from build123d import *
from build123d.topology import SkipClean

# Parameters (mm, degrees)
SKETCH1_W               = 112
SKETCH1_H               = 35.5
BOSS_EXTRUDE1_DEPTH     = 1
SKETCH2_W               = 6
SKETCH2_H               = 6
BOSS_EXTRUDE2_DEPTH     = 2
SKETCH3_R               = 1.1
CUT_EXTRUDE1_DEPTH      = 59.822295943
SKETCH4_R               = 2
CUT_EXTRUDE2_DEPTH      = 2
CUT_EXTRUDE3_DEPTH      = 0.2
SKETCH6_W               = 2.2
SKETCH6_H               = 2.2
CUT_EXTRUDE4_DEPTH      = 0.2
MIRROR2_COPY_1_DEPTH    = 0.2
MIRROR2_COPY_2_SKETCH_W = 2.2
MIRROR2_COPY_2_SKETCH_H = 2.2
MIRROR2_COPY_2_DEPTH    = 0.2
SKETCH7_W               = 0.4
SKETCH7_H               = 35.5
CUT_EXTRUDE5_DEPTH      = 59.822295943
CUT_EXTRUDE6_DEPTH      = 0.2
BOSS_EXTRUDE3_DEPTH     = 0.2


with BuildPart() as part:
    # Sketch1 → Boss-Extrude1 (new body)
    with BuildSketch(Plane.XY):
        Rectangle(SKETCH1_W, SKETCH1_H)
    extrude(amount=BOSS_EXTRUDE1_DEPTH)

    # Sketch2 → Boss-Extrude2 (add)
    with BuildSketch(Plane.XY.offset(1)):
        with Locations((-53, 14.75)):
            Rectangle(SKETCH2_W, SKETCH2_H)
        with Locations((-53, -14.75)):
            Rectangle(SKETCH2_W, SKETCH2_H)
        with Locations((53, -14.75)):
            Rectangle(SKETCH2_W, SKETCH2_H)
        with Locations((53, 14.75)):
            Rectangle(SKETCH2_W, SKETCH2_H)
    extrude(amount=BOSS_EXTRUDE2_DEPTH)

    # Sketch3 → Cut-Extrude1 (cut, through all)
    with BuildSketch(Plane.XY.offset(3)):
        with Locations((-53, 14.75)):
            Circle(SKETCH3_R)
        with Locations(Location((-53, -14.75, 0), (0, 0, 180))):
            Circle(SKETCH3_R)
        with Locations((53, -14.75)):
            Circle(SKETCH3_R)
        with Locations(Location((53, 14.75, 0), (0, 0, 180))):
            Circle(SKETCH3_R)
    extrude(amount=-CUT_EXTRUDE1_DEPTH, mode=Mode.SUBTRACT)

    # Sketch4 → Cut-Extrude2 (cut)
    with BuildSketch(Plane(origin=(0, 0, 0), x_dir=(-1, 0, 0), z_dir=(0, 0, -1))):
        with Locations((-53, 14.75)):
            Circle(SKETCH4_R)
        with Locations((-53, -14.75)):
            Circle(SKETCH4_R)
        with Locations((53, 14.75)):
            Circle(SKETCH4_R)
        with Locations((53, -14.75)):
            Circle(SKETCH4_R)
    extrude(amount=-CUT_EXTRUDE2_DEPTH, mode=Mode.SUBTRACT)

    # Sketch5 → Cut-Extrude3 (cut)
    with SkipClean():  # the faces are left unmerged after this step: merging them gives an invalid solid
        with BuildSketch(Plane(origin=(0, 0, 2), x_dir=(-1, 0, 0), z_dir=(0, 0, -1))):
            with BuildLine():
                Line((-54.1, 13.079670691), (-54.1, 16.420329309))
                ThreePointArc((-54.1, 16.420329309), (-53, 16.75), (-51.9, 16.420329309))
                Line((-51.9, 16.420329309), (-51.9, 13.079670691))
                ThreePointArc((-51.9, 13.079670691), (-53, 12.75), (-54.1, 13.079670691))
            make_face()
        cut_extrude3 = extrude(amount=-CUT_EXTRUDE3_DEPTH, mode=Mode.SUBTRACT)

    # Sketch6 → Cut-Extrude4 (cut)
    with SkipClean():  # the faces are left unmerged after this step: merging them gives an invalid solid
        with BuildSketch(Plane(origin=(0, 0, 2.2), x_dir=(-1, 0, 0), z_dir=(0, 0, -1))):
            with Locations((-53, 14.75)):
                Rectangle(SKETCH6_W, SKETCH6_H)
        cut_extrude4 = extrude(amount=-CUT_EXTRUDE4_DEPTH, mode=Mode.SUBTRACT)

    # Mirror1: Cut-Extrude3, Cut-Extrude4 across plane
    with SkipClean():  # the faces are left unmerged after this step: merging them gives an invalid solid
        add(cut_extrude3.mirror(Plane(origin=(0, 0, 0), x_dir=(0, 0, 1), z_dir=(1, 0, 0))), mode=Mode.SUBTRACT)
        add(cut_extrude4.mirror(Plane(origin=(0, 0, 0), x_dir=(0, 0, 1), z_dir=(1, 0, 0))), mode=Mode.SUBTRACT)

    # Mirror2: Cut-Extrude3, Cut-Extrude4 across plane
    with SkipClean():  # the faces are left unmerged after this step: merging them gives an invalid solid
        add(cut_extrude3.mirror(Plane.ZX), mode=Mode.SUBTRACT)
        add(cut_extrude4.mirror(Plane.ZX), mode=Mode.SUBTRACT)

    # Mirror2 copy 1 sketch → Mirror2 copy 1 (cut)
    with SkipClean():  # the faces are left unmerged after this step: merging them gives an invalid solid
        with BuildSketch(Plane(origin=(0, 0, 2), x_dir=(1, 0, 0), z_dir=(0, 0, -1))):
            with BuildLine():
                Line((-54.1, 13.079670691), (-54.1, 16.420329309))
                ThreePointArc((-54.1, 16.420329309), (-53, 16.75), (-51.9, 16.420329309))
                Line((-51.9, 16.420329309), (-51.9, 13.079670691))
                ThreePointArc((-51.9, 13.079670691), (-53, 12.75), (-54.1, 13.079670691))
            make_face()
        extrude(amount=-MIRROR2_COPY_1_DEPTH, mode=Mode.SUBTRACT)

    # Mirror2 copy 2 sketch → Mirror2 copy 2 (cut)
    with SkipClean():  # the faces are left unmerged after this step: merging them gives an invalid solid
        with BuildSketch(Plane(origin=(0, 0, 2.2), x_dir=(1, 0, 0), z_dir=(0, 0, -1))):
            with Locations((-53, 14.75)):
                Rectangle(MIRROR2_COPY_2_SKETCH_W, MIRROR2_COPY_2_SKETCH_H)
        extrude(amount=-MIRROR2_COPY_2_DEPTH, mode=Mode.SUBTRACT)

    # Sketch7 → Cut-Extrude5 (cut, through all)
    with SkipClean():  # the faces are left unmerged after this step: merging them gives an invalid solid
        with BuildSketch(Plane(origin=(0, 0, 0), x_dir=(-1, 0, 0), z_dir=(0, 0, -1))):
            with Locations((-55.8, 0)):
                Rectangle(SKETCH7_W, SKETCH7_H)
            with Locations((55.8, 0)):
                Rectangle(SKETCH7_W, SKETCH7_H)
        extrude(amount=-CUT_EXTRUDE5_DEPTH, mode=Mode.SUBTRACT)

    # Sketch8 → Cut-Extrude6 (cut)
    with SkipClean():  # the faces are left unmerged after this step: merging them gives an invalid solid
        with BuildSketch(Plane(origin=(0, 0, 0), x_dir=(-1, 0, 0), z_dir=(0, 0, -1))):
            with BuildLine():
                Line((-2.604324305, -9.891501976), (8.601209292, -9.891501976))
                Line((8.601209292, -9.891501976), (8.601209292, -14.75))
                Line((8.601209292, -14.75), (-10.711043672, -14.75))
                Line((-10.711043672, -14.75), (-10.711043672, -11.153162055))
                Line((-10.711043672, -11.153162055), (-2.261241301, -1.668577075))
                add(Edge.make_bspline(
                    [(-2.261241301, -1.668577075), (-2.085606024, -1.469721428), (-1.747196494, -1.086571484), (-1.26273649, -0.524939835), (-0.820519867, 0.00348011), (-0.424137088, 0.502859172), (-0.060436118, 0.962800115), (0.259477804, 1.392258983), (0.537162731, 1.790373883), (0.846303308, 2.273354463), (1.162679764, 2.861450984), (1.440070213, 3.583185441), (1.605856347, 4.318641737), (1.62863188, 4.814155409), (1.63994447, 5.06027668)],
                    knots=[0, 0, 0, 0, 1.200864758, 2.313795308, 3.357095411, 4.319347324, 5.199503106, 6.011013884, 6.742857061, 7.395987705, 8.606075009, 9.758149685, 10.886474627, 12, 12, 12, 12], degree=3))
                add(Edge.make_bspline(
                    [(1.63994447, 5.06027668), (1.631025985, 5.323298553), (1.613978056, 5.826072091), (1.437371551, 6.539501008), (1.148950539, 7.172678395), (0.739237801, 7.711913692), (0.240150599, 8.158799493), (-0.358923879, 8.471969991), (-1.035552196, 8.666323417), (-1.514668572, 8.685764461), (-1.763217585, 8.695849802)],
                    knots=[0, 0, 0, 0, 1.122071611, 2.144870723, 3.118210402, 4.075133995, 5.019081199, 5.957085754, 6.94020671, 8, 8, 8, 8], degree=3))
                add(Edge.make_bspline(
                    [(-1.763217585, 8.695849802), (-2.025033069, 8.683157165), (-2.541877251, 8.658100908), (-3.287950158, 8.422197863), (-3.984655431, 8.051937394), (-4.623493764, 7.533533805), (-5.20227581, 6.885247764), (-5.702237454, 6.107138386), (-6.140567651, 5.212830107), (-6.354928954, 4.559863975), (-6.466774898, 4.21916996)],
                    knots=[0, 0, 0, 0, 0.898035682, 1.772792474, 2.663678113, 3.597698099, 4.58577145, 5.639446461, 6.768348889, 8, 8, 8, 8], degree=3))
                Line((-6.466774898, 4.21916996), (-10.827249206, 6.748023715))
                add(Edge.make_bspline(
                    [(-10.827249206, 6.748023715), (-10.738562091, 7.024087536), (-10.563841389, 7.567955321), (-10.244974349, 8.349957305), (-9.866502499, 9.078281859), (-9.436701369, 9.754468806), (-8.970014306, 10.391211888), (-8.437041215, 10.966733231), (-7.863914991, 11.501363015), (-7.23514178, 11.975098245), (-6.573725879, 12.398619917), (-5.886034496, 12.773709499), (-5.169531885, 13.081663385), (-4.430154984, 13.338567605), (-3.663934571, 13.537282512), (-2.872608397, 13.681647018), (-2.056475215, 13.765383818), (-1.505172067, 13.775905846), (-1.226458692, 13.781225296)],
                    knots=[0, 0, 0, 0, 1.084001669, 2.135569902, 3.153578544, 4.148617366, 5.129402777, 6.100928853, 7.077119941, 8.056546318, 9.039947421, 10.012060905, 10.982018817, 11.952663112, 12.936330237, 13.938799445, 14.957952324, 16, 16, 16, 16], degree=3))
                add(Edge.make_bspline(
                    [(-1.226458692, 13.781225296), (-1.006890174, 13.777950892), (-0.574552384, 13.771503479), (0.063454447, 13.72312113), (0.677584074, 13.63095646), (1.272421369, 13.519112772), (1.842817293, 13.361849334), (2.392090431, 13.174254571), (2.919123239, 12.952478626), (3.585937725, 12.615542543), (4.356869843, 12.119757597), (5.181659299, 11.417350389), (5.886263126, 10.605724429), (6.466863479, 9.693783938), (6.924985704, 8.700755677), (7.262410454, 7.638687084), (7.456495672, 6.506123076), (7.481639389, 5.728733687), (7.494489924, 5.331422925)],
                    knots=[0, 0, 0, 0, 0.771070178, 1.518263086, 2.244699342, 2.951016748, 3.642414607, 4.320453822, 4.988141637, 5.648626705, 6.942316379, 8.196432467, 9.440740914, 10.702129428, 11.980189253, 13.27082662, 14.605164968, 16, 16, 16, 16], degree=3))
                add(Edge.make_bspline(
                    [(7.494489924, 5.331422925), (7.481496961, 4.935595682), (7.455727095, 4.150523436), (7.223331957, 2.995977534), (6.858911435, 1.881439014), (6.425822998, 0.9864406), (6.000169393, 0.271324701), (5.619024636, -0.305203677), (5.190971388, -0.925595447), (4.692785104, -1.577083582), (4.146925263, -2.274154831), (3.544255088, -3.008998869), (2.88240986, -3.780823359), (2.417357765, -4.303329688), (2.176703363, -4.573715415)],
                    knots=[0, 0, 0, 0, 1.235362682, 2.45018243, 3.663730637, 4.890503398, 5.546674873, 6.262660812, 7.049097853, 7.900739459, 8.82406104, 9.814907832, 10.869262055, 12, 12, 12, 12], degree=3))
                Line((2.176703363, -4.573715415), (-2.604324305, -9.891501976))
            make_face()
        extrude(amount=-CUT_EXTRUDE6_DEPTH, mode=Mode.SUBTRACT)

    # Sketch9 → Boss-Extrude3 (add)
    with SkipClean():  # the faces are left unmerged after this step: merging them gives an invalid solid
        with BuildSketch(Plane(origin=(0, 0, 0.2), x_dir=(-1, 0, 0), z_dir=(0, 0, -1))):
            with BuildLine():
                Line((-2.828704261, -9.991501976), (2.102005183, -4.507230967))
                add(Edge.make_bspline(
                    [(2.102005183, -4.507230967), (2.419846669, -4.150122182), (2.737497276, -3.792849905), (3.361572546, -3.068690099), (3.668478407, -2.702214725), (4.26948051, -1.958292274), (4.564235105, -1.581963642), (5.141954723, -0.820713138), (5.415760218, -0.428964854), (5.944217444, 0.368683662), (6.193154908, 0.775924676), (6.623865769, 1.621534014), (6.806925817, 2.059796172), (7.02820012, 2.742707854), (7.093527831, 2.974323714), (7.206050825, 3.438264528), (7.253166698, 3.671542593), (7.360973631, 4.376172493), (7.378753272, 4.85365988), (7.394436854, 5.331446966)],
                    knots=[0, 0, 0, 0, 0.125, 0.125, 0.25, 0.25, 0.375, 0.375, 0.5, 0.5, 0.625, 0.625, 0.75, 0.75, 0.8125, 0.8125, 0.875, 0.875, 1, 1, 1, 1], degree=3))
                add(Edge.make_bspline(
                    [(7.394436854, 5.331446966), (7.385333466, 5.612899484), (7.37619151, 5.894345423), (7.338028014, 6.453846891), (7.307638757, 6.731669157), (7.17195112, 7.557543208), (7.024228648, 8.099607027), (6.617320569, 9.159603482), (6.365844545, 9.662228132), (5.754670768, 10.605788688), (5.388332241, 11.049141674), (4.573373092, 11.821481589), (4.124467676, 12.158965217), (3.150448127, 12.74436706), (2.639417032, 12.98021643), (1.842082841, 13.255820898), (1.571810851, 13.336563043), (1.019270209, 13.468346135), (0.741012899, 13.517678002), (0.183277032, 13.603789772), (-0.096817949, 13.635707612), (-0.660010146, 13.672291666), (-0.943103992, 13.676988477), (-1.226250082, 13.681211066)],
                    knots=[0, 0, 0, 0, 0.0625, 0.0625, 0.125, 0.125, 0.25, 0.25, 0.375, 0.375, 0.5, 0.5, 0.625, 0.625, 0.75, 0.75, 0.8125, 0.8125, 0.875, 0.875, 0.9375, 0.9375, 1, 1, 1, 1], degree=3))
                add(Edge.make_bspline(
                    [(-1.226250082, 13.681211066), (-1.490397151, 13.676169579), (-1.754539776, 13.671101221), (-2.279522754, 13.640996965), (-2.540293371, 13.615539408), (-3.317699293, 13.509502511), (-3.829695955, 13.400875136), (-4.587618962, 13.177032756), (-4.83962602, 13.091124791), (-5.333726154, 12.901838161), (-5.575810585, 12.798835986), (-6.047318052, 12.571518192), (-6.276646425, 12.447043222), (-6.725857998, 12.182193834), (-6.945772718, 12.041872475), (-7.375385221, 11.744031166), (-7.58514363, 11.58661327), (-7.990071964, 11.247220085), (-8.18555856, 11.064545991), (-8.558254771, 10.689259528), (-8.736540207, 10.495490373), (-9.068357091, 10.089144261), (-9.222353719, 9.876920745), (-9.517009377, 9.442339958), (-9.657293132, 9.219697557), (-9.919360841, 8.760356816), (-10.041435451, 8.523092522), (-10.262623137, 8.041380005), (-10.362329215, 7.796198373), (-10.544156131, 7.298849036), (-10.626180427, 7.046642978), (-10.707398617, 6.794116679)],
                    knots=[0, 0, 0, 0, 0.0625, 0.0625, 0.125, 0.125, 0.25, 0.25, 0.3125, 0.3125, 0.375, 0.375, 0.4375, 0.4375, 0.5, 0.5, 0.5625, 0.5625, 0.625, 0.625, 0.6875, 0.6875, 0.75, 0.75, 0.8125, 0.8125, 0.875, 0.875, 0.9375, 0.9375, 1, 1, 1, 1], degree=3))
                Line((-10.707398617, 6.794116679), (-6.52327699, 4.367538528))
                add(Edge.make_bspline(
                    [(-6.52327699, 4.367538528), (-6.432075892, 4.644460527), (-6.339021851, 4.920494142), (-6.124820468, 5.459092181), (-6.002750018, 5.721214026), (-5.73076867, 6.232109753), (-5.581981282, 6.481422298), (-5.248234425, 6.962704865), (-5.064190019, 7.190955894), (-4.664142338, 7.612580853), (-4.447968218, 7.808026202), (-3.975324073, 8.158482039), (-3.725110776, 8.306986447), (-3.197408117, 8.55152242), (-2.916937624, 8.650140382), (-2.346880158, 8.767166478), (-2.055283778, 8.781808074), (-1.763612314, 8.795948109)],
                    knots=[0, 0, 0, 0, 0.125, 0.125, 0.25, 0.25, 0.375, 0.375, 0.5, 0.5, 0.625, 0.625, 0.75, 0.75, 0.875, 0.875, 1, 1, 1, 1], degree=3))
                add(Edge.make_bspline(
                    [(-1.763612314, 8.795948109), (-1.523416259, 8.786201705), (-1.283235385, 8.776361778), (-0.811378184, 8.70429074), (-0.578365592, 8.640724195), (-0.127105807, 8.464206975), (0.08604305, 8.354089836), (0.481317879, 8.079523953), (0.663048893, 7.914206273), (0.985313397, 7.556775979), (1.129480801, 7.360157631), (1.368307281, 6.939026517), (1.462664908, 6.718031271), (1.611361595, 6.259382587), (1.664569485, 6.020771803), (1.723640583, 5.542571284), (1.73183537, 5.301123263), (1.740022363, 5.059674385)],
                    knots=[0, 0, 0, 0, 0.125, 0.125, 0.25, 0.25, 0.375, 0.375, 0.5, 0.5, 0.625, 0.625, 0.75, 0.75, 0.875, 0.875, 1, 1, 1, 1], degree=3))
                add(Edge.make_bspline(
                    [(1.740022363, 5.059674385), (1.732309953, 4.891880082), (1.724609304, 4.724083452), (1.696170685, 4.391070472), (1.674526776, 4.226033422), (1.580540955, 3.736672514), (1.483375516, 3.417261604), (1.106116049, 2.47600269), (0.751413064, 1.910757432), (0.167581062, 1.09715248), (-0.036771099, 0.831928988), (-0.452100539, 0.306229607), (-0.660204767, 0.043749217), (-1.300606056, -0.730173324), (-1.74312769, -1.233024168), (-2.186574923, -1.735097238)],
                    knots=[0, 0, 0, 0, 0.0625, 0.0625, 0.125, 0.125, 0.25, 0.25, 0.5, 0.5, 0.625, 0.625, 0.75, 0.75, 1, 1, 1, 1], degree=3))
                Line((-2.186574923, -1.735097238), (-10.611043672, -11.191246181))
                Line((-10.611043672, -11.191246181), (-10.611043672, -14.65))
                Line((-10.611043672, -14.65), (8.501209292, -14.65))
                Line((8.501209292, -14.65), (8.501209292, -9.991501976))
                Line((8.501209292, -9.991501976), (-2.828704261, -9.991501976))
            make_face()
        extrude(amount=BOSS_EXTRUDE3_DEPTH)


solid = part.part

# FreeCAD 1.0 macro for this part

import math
import FreeCAD as App
import Part
import Sketcher

V = App.Vector
Q = App.Units.Quantity


def add_polygon(sketch, points):
    """Adds a closed chain of lines whose ends are joined by coincident constraints."""
    first, n = sketch.GeometryCount, len(points)
    for a, b in zip(points, points[1:] + points[:1]):
        sketch.addGeometry(Part.LineSegment(App.Vector(*a, 0), App.Vector(*b, 0)), False)
    for i in range(n):
        sketch.addConstraint(Sketcher.Constraint("Coincident", first + i, 2, first + (i + 1) % n, 1))

doc = App.newDocument("Part")
body = doc.addObject("PartDesign::Body", "Body")

# Sketch on XY plane
sketch1 = body.newObject("Sketcher::SketchObject", "Sketch")
sketch1.AttachmentSupport = (doc.getObject("XY_Plane"), [""])
sketch1.MapMode = "FlatFace"
add_polygon(sketch1, [(-56, 18), (-56, -18), (56, -18), (56, 18)])  # lines 0-3
sketch1.addConstraint([
    Sketcher.Constraint("Vertical", 0),
    Sketcher.Constraint("Horizontal", 1),
    Sketcher.Constraint("Vertical", 2),
    Sketcher.Constraint("Horizontal", 3),
    Sketcher.Constraint("Symmetric", 0, 2, 2, 2, -1, 1),
    Sketcher.Constraint("DistanceX", 1, 1, 1, 2, Q("112 mm")),
    Sketcher.Constraint("DistanceY", 0, 2, 0, 1, Q("35.5 mm")),
])
pad1 = body.newObject("PartDesign::Pad", "Pad")
pad1.Profile = sketch1
pad1.Length = 1

# Sketch on XY plane
sketch2 = body.newObject("Sketcher::SketchObject", "Sketch001")
sketch2.AttachmentSupport = (doc.getObject("XY_Plane"), [""])
sketch2.MapMode = "FlatFace"
sketch2.AttachmentOffset = App.Placement(V(0, 0, 1), App.Rotation())
add_polygon(sketch2, [(-56, 18), (-56, 12), (-50, 12), (-50, 18)])  # lines 0-3
add_polygon(sketch2, [(-56, -12), (-56, -18), (-50, -18), (-50, -12)])  # lines 4-7
add_polygon(sketch2, [(50, -12), (50, -18), (56, -18), (56, -12)])  # lines 8-11
add_polygon(sketch2, [(50, 18), (50, 12), (56, 12), (56, 18)])  # lines 12-15
sketch2.addConstraint([
    Sketcher.Constraint("Vertical", 0),
    Sketcher.Constraint("Horizontal", 1),
    Sketcher.Constraint("Vertical", 2),
    Sketcher.Constraint("Horizontal", 3),
    Sketcher.Constraint("Vertical", 4),
    Sketcher.Constraint("Horizontal", 5),
    Sketcher.Constraint("Vertical", 6),
    Sketcher.Constraint("Horizontal", 7),
    Sketcher.Constraint("Vertical", 8),
    Sketcher.Constraint("Horizontal", 9),
    Sketcher.Constraint("Vertical", 10),
    Sketcher.Constraint("Horizontal", 11),
    Sketcher.Constraint("Vertical", 12),
    Sketcher.Constraint("Horizontal", 13),
    Sketcher.Constraint("Vertical", 14),
    Sketcher.Constraint("Horizontal", 15),
    Sketcher.Constraint("Symmetric", 2, 2, 8, 2, -1, 1),
    Sketcher.Constraint("Symmetric", 0, 2, 10, 2, -1, 1),
    Sketcher.Constraint("Symmetric", 6, 2, 12, 2, -1, 1),
    Sketcher.Constraint("Symmetric", 4, 2, 14, 2, -1, 1),
    Sketcher.Constraint("Symmetric", 5, 2, 8, 2, -2),
    Sketcher.Constraint("Symmetric", 7, 2, 10, 2, -2),
    Sketcher.Constraint("Equal", 15, 0),
    Sketcher.Constraint("DistanceX", 1, 1, 1, 2, Q("6 mm")),
    Sketcher.Constraint("DistanceX", 0, 2, -1, 1, Q("56 mm")),
    Sketcher.Constraint("DistanceY", 4, 2, 0, 2, Q("29.5 mm")),
])
pad2 = body.newObject("PartDesign::Pad", "Pad001")
pad2.Profile = sketch2
pad2.Length = 2

# Sketch on XY plane
sketch3 = body.newObject("Sketcher::SketchObject", "Sketch002")
sketch3.AttachmentSupport = (doc.getObject("XY_Plane"), [""])
sketch3.MapMode = "FlatFace"
sketch3.AttachmentOffset = App.Placement(V(0, 0, 3), App.Rotation())
sketch3.addGeometry([
    Part.Circle(V(-53, 14.8, 0), V(0, 0, 1), 1.1),
    Part.Circle(V(-53, -14.8, 0), V(0, 0, 1), 1.1),
    Part.Circle(V(53, -14.8, 0), V(0, 0, 1), 1.1),
    Part.Circle(V(53, 14.8, 0), V(0, 0, 1), 1.1),
], False)
sketch3.addConstraint([
    Sketcher.Constraint("Equal", 0, 1),
    Sketcher.Constraint("Equal", 1, 2),
    Sketcher.Constraint("Equal", 2, 3),
    Sketcher.Constraint("Symmetric", 0, 3, 2, 3, -1, 1),
    Sketcher.Constraint("Symmetric", 1, 3, 3, 3, -1, 1),
    Sketcher.Constraint("Symmetric", 1, 3, 2, 3, -2),
    Sketcher.Constraint("Diameter", 0, Q("2.2 mm")),
    Sketcher.Constraint("DistanceX", 0, 3, -1, 1, Q("53 mm")),
    Sketcher.Constraint("DistanceY", 1, 3, 0, 3, Q("29.5 mm")),
])
pocket1 = body.newObject("PartDesign::Pocket", "Pocket")
pocket1.Profile = sketch3
pocket1.Type = "ThroughAll"

# Sketch on XY plane
sketch4 = body.newObject("Sketcher::SketchObject", "Sketch003")
sketch4.AttachmentSupport = (doc.getObject("XY_Plane"), [""])
sketch4.MapMode = "FlatFace"
sketch4.addGeometry([
    Part.Circle(V(53, 14.8, 0), V(0, 0, 1), 2),
    Part.Circle(V(53, -14.8, 0), V(0, 0, 1), 2),
    Part.Circle(V(-53, 14.8, 0), V(0, 0, 1), 2),
    Part.Circle(V(-53, -14.8, 0), V(0, 0, 1), 2),
], False)
sketch4.addConstraint([
    Sketcher.Constraint("Equal", 0, 1),
    Sketcher.Constraint("Equal", 1, 2),
    Sketcher.Constraint("Equal", 2, 3),
    Sketcher.Constraint("Symmetric", 1, 3, 2, 3, -1, 1),
    Sketcher.Constraint("Symmetric", 0, 3, 3, 3, -1, 1),
    Sketcher.Constraint("Symmetric", 0, 3, 2, 3, -2),
    Sketcher.Constraint("Diameter", 0, Q("4 mm")),
    Sketcher.Constraint("DistanceX", -1, 1, 0, 3, Q("53 mm")),
    Sketcher.Constraint("DistanceY", 1, 3, 0, 3, Q("29.5 mm")),
])
pocket2 = body.newObject("PartDesign::Pocket", "Pocket001")
pocket2.Profile = sketch4
pocket2.Length = 2
pocket2.Reversed = True

# Sketch on XY plane
sketch5 = body.newObject("Sketcher::SketchObject", "Sketch004")
sketch5.AttachmentSupport = (doc.getObject("XY_Plane"), [""])
sketch5.MapMode = "FlatFace"
sketch5.AttachmentOffset = App.Placement(V(0, 0, 2), App.Rotation())
sketch5.addGeometry([
    Part.LineSegment(V(54.1, 16.4, 0), V(54.1, 13.1, 0)),
    Part.ArcOfCircle(Part.Circle(V(53, 14.8, 0), V(0, 0, 1), 2), math.radians(-123), math.radians(-57)),
    Part.LineSegment(V(51.9, 13.1, 0), V(51.9, 16.4, 0)),
    Part.ArcOfCircle(Part.Circle(V(53, 14.7, 0), V(0, 0, 1), 2), math.radians(57), math.radians(123)),
], False)
sketch5.addConstraint([
    Sketcher.Constraint("Coincident", 0, 2, 1, 2),
    Sketcher.Constraint("Coincident", 1, 1, 2, 1),
    Sketcher.Constraint("Coincident", 2, 2, 3, 2),
    Sketcher.Constraint("Coincident", 3, 1, 0, 1),
    Sketcher.Constraint("Vertical", 0),
    Sketcher.Constraint("Vertical", 2),
    Sketcher.Constraint("Coincident", 3, 3, 1, 3),
    Sketcher.Constraint("Equal", 1, 3),
    Sketcher.Constraint("Horizontal", 0, 2, 1, 1),
    Sketcher.Constraint("Radius", 1, Q("2 mm")),
    Sketcher.Constraint("DistanceX", -1, 1, 1, 3, Q("53 mm")),
    Sketcher.Constraint("DistanceX", -1, 1, 0, 2, Q("54.1 mm")),
    Sketcher.Constraint("DistanceY", -1, 1, 1, 3, Q("14.75 mm")),
])
pocket3 = body.newObject("PartDesign::Pocket", "Pocket002")
pocket3.Profile = sketch5
pocket3.Length = 0.2
pocket3.Reversed = True

# Sketch on XY plane
sketch6 = body.newObject("Sketcher::SketchObject", "Sketch005")
sketch6.AttachmentSupport = (doc.getObject("XY_Plane"), [""])
sketch6.MapMode = "FlatFace"
sketch6.AttachmentOffset = App.Placement(V(0, 0, 2.2), App.Rotation())
add_polygon(sketch6, [(54.1, 15.8), (54.1, 13.7), (51.9, 13.7), (51.9, 15.8)])  # lines 0-3
sketch6.addConstraint([
    Sketcher.Constraint("Vertical", 0),
    Sketcher.Constraint("Horizontal", 1),
    Sketcher.Constraint("Vertical", 2),
    Sketcher.Constraint("Horizontal", 3),
    Sketcher.Constraint("Equal", 3, 0),
    Sketcher.Constraint("DistanceX", 1, 2, 1, 1, Q("2.2 mm")),
    Sketcher.Constraint("DistanceX", -1, 1, 0, 2, Q("54.1 mm")),
    Sketcher.Constraint("DistanceY", -1, 1, 0, 2, Q("13.65 mm")),
])
pocket4 = body.newObject("PartDesign::Pocket", "Pocket003")
pocket4.Profile = sketch6
pocket4.Length = 0.2
pocket4.Reversed = True
doc.recompute()

mirrored = body.newObject("PartDesign::Mirrored", "Mirrored")
mirrored.Originals = [pocket3, pocket4]
mirrored.MirrorPlane = (doc.getObject("YZ_Plane"), [""])
body.Tip = mirrored
doc.recompute()

mirrored2 = body.newObject("PartDesign::Mirrored", "Mirrored001")
mirrored2.Originals = [pocket3, pocket4]
mirrored2.MirrorPlane = (doc.getObject("XZ_Plane"), [""])
body.Tip = mirrored2

# Sketch on XY plane
sketch7 = body.newObject("Sketcher::SketchObject", "Sketch006")
sketch7.AttachmentSupport = (doc.getObject("XY_Plane"), [""])
sketch7.MapMode = "FlatFace"
sketch7.AttachmentOffset = App.Placement(V(0, 0, 2), App.Rotation())
sketch7.addGeometry([
    Part.LineSegment(V(-54.1, -16.4, 0), V(-54.1, -13.1, 0)),
    Part.ArcOfCircle(Part.Circle(V(-53, -14.8, 0), V(0, 0, 1), 2), math.radians(57), math.radians(123)),
    Part.LineSegment(V(-51.9, -13.1, 0), V(-51.9, -16.4, 0)),
    Part.ArcOfCircle(Part.Circle(V(-53, -14.7, 0), V(0, 0, 1), 2), math.radians(-123), math.radians(-57)),
], False)
sketch7.addConstraint([
    Sketcher.Constraint("Coincident", 0, 2, 1, 2),
    Sketcher.Constraint("Coincident", 1, 1, 2, 1),
    Sketcher.Constraint("Coincident", 2, 2, 3, 2),
    Sketcher.Constraint("Coincident", 3, 1, 0, 1),
    Sketcher.Constraint("Vertical", 0),
    Sketcher.Constraint("Vertical", 2),
    Sketcher.Constraint("Coincident", 3, 3, 1, 3),
    Sketcher.Constraint("Equal", 1, 3),
    Sketcher.Constraint("Horizontal", 0, 2, 1, 1),
    Sketcher.Constraint("Radius", 1, Q("2 mm")),
    Sketcher.Constraint("DistanceX", 1, 3, -1, 1, Q("53 mm")),
    Sketcher.Constraint("DistanceX", 0, 2, -1, 1, Q("54.1 mm")),
    Sketcher.Constraint("DistanceY", 1, 3, -1, 1, Q("14.75 mm")),
])
pocket5 = body.newObject("PartDesign::Pocket", "Pocket004")
pocket5.Profile = sketch7
pocket5.Length = 0.2
pocket5.Reversed = True

# Sketch on XY plane
sketch8 = body.newObject("Sketcher::SketchObject", "Sketch007")
sketch8.AttachmentSupport = (doc.getObject("XY_Plane"), [""])
sketch8.MapMode = "FlatFace"
sketch8.AttachmentOffset = App.Placement(V(0, 0, 2.2), App.Rotation())
add_polygon(sketch8, [(-54.1, -15.8), (-54.1, -13.7), (-51.9, -13.7), (-51.9, -15.8)])  # lines 0-3
sketch8.addConstraint([
    Sketcher.Constraint("Vertical", 0),
    Sketcher.Constraint("Horizontal", 1),
    Sketcher.Constraint("Vertical", 2),
    Sketcher.Constraint("Horizontal", 3),
    Sketcher.Constraint("Equal", 3, 0),
    Sketcher.Constraint("DistanceX", 1, 1, 1, 2, Q("2.2 mm")),
    Sketcher.Constraint("DistanceX", 0, 2, -1, 1, Q("54.1 mm")),
    Sketcher.Constraint("DistanceY", 0, 2, -1, 1, Q("13.65 mm")),
])
pocket6 = body.newObject("PartDesign::Pocket", "Pocket005")
pocket6.Profile = sketch8
pocket6.Length = 0.2
pocket6.Reversed = True

# Sketch on XY plane
sketch9 = body.newObject("Sketcher::SketchObject", "Sketch008")
sketch9.AttachmentSupport = (doc.getObject("XY_Plane"), [""])
sketch9.MapMode = "FlatFace"
add_polygon(sketch9, [(56, 17.75), (56, -17.75), (55.6, -17.75), (55.6, 17.75)])  # lines 0-3
add_polygon(sketch9, [(-55.6, 17.75), (-55.6, -17.75), (-56, -17.75), (-56, 17.75)])  # lines 4-7
sketch9.addConstraint([
    Sketcher.Constraint("Vertical", 0),
    Sketcher.Constraint("Horizontal", 1),
    Sketcher.Constraint("Vertical", 2),
    Sketcher.Constraint("Horizontal", 3),
    Sketcher.Constraint("Vertical", 4),
    Sketcher.Constraint("Horizontal", 5),
    Sketcher.Constraint("Vertical", 6),
    Sketcher.Constraint("Horizontal", 7),
    Sketcher.Constraint("Symmetric", 2, 2, 4, 2, -1, 1),
    Sketcher.Constraint("Symmetric", 0, 2, 6, 2, -1, 1),
    Sketcher.Constraint("Horizontal", 1, 2, 4, 2),
    Sketcher.Constraint("DistanceX", 1, 2, 1, 1, Q("0.4 mm")),
    Sketcher.Constraint("DistanceY", 0, 2, 0, 1, Q("35.5 mm")),
    Sketcher.Constraint("DistanceX", -1, 1, 0, 2, Q("56 mm")),
])
pocket7 = body.newObject("PartDesign::Pocket", "Pocket006")
pocket7.Profile = sketch9
pocket7.Type = "ThroughAll"
pocket7.Reversed = True

# Sketch on XY plane
sketch10 = body.newObject("Sketcher::SketchObject", "Sketch009")
sketch10.AttachmentSupport = (doc.getObject("XY_Plane"), [""])
sketch10.MapMode = "FlatFace"
sketch10.addGeometry([
    Part.LineSegment(V(-8.601209, -9.891502, 0), V(2.604324, -9.891502, 0)),  # 0
    Part.LineSegment(V(2.604324, -9.891502, 0), V(-2.176703, -4.573715, 0)),  # 1
    Part.BSplineCurve([V(-7.49449, 5.331423, 0), V(-7.481497, 4.935596, 0), V(-7.455727, 4.150523, 0), V(-7.223332, 2.995978, 0), V(-6.858911, 1.881439, 0), V(-6.425823, 0.986441, 0), V(-6.000169, 0.271325, 0), V(-5.619025, -0.305204, 0), V(-5.190971, -0.925595, 0), V(-4.692785, -1.577084, 0), V(-4.146925, -2.274155, 0), V(-3.544255, -3.008999, 0), V(-2.88241, -3.780823, 0), V(-2.417358, -4.30333, 0), V(-2.176703, -4.573715, 0)], [4, 1, 1, 1, 1, 1, 1, 1, 1, 1, 1, 1, 4], [0, 1.235362682, 2.45018243, 3.663730637, 4.890503398, 5.546674873, 6.262660812, 7.049097853, 7.900739459, 8.82406104, 9.814907832, 10.869262055, 12], False, 3, [1, 1, 1, 1, 1, 1, 1, 1, 1, 1, 1, 1, 1, 1, 1], False),  # 2
    Part.BSplineCurve([V(1.226459, 13.781225, 0), V(1.00689, 13.777951, 0), V(0.574552, 13.771503, 0), V(-0.063454, 13.723121, 0), V(-0.677584, 13.630956, 0), V(-1.272421, 13.519113, 0), V(-1.842817, 13.361849, 0), V(-2.39209, 13.174255, 0), V(-2.919123, 12.952479, 0), V(-3.585938, 12.615543, 0), V(-4.35687, 12.119758, 0), V(-5.181659, 11.41735, 0), V(-5.886263, 10.605724, 0), V(-6.466863, 9.693784, 0), V(-6.924986, 8.700756, 0), V(-7.26241, 7.638687, 0), V(-7.456496, 6.506123, 0), V(-7.481639, 5.728734, 0), V(-7.49449, 5.331423, 0)], [4, 1, 1, 1, 1, 1, 1, 1, 1, 1, 1, 1, 1, 1, 1, 1, 4], [0, 0.771070178, 1.518263086, 2.244699342, 2.951016748, 3.642414607, 4.320453822, 4.988141637, 5.648626705, 6.942316379, 8.196432467, 9.440740914, 10.702129428, 11.980189253, 13.27082662, 14.605164968, 16], False, 3, [1, 1, 1, 1, 1, 1, 1, 1, 1, 1, 1, 1, 1, 1, 1, 1, 1, 1, 1], False),  # 3
    Part.BSplineCurve([V(10.827249, 6.748024, 0), V(10.738562, 7.024088, 0), V(10.563841, 7.567955, 0), V(10.244974, 8.349957, 0), V(9.866502, 9.078282, 0), V(9.436701, 9.754469, 0), V(8.970014, 10.391212, 0), V(8.437041, 10.966733, 0), V(7.863915, 11.501363, 0), V(7.235142, 11.975098, 0), V(6.573726, 12.39862, 0), V(5.886034, 12.773709, 0), V(5.169532, 13.081663, 0), V(4.430155, 13.338568, 0), V(3.663935, 13.537283, 0), V(2.872608, 13.681647, 0), V(2.056475, 13.765384, 0), V(1.505172, 13.775906, 0), V(1.226459, 13.781225, 0)], [4, 1, 1, 1, 1, 1, 1, 1, 1, 1, 1, 1, 1, 1, 1, 1, 4], [0, 1.084001669, 2.135569902, 3.153578544, 4.148617366, 5.129402777, 6.100928853, 7.077119941, 8.056546318, 9.039947421, 10.012060905, 10.982018817, 11.952663112, 12.936330237, 13.938799445, 14.957952324, 16], False, 3, [1, 1, 1, 1, 1, 1, 1, 1, 1, 1, 1, 1, 1, 1, 1, 1, 1, 1, 1], False),  # 4
    Part.LineSegment(V(10.827249, 6.748024, 0), V(6.466775, 4.21917, 0)),  # 5
    Part.BSplineCurve([V(1.763218, 8.69585, 0), V(2.025033, 8.683157, 0), V(2.541877, 8.658101, 0), V(3.28795, 8.422198, 0), V(3.984655, 8.051937, 0), V(4.623494, 7.533534, 0), V(5.202276, 6.885248, 0), V(5.702237, 6.107138, 0), V(6.140568, 5.21283, 0), V(6.354929, 4.559864, 0), V(6.466775, 4.21917, 0)], [4, 1, 1, 1, 1, 1, 1, 1, 4], [0, 0.898035682, 1.772792474, 2.663678113, 3.597698099, 4.58577145, 5.639446461, 6.768348889, 8], False, 3, [1, 1, 1, 1, 1, 1, 1, 1, 1, 1, 1], False),  # 6
    Part.BSplineCurve([V(-1.639944, 5.060277, 0), V(-1.631026, 5.323299, 0), V(-1.613978, 5.826072, 0), V(-1.437372, 6.539501, 0), V(-1.148951, 7.172678, 0), V(-0.739238, 7.711914, 0), V(-0.240151, 8.158799, 0), V(0.358924, 8.47197, 0), V(1.035552, 8.666323, 0), V(1.514669, 8.685764, 0), V(1.763218, 8.69585, 0)], [4, 1, 1, 1, 1, 1, 1, 1, 4], [0, 1.122071611, 2.144870723, 3.118210402, 4.075133995, 5.019081199, 5.957085754, 6.94020671, 8], False, 3, [1, 1, 1, 1, 1, 1, 1, 1, 1, 1, 1], False),  # 7
    Part.BSplineCurve([V(2.261241, -1.668577, 0), V(2.085606, -1.469721, 0), V(1.747196, -1.086571, 0), V(1.262736, -0.52494, 0), V(0.82052, 0.00348, 0), V(0.424137, 0.502859, 0), V(0.060436, 0.9628, 0), V(-0.259478, 1.392259, 0), V(-0.537163, 1.790374, 0), V(-0.846303, 2.273354, 0), V(-1.16268, 2.861451, 0), V(-1.44007, 3.583185, 0), V(-1.605856, 4.318642, 0), V(-1.628632, 4.814155, 0), V(-1.639944, 5.060277, 0)], [4, 1, 1, 1, 1, 1, 1, 1, 1, 1, 1, 1, 4], [0, 1.200864758, 2.313795308, 3.357095411, 4.319347324, 5.199503106, 6.011013884, 6.742857061, 7.395987705, 8.606075009, 9.758149685, 10.886474627, 12], False, 3, [1, 1, 1, 1, 1, 1, 1, 1, 1, 1, 1, 1, 1, 1, 1], False),  # 8
    Part.LineSegment(V(2.261241, -1.668577, 0), V(10.711044, -11.153162, 0)),  # 9
    Part.LineSegment(V(10.711044, -11.153162, 0), V(10.711044, -14.75, 0)),  # 10
    Part.LineSegment(V(10.711044, -14.75, 0), V(-8.601209, -14.75, 0)),  # 11
    Part.LineSegment(V(-8.601209, -14.75, 0), V(-8.601209, -9.891502, 0)),  # 12
], False)
sketch10.addConstraint([
    Sketcher.Constraint("Block", 2),
    Sketcher.Constraint("Block", 3),
    Sketcher.Constraint("Block", 4),
    Sketcher.Constraint("Block", 6),
    Sketcher.Constraint("Block", 7),
    Sketcher.Constraint("Block", 8),
    Sketcher.Constraint("Coincident", 0, 2, 1, 1),
    Sketcher.Constraint("Coincident", 1, 2, 2, 2),
    Sketcher.Constraint("Coincident", 4, 1, 5, 1),
    Sketcher.Constraint("Coincident", 5, 2, 6, 2),
    Sketcher.Constraint("Coincident", 8, 1, 9, 1),
    Sketcher.Constraint("Coincident", 9, 2, 10, 1),
    Sketcher.Constraint("Coincident", 10, 2, 11, 1),
    Sketcher.Constraint("Coincident", 11, 2, 12, 1),
    Sketcher.Constraint("Coincident", 12, 2, 0, 1),
    Sketcher.Constraint("Horizontal", 0),
    Sketcher.Constraint("Vertical", 10),
    Sketcher.Constraint("Horizontal", 11),
    Sketcher.Constraint("Vertical", 12),
    Sketcher.Constraint("DistanceY", 10, 2, -1, 1, Q("14.75 mm")),
    Sketcher.Constraint("DistanceY", 12, 1, 12, 2, Q("4.858498 mm")),
    Sketcher.Constraint("Distance", 1, Q("7.151019 mm")),
    Sketcher.Constraint("Distance", 9, Q("12.702618 mm")),
    Sketcher.Constraint("DistanceX", 0, 1, 0, 2, Q("11.205534 mm")),
    Sketcher.Constraint("DistanceX", 11, 2, 11, 1, Q("19.312253 mm")),
])
pocket8 = body.newObject("PartDesign::Pocket", "Pocket007")
pocket8.Profile = sketch10
pocket8.Length = 0.2
pocket8.Reversed = True

# Sketch on XY plane
sketch11 = body.newObject("Sketcher::SketchObject", "Sketch010")
sketch11.AttachmentSupport = (doc.getObject("XY_Plane"), [""])
sketch11.MapMode = "FlatFace"
sketch11.AttachmentOffset = App.Placement(V(0, 0, 0.2), App.Rotation())
sketch11.addGeometry([
    Part.LineSegment(V(2.828704, -9.991502, 0), V(-2.102005, -4.507231, 0)),  # 0
    Part.BSplineCurve([V(-2.102005, -4.507231, 0), V(-2.419847, -4.150122, 0), V(-2.737497, -3.79285, 0), V(-3.361573, -3.06869, 0), V(-3.668478, -2.702215, 0), V(-4.269481, -1.958292, 0), V(-4.564235, -1.581964, 0), V(-5.141955, -0.820713, 0), V(-5.41576, -0.428965, 0), V(-5.944217, 0.368684, 0), V(-6.193155, 0.775925, 0), V(-6.623866, 1.621534, 0), V(-6.806926, 2.059796, 0), V(-7.0282, 2.742708, 0), V(-7.093528, 2.974324, 0), V(-7.206051, 3.438265, 0), V(-7.253167, 3.671543, 0), V(-7.360974, 4.376172, 0), V(-7.378753, 4.85366, 0), V(-7.394437, 5.331447, 0)], [4, 2, 2, 2, 2, 2, 2, 2, 2, 4], [0, 0.125, 0.25, 0.375, 0.5, 0.625, 0.75, 0.8125, 0.875, 1], False, 3, [1, 1, 1, 1, 1, 1, 1, 1, 1, 1, 1, 1, 1, 1, 1, 1, 1, 1, 1, 1], False),  # 1
    Part.BSplineCurve([V(-7.394437, 5.331447, 0), V(-7.385333, 5.612899, 0), V(-7.376192, 5.894345, 0), V(-7.338028, 6.453847, 0), V(-7.307639, 6.731669, 0), V(-7.171951, 7.557543, 0), V(-7.024229, 8.099607, 0), V(-6.617321, 9.159603, 0), V(-6.365845, 9.662228, 0), V(-5.754671, 10.605789, 0), V(-5.388332, 11.049142, 0), V(-4.573373, 11.821482, 0), V(-4.124468, 12.158965, 0), V(-3.150448, 12.744367, 0), V(-2.639417, 12.980216, 0), V(-1.842083, 13.255821, 0), V(-1.571811, 13.336563, 0), V(-1.01927, 13.468346, 0), V(-0.741013, 13.517678, 0), V(-0.183277, 13.60379, 0), V(0.096818, 13.635708, 0), V(0.66001, 13.672292, 0), V(0.943104, 13.676988, 0), V(1.22625, 13.681211, 0)], [4, 2, 2, 2, 2, 2, 2, 2, 2, 2, 2, 4], [0, 0.0625, 0.125, 0.25, 0.375, 0.5, 0.625, 0.75, 0.8125, 0.875, 0.9375, 1], False, 3, [1, 1, 1, 1, 1, 1, 1, 1, 1, 1, 1, 1, 1, 1, 1, 1, 1, 1, 1, 1, 1, 1, 1, 1], False),  # 2
    Part.BSplineCurve([V(1.22625, 13.681211, 0), V(1.490397, 13.67617, 0), V(1.75454, 13.671101, 0), V(2.279523, 13.640997, 0), V(2.540293, 13.615539, 0), V(3.317699, 13.509503, 0), V(3.829696, 13.400875, 0), V(4.587619, 13.177033, 0), V(4.839626, 13.091125, 0), V(5.333726, 12.901838, 0), V(5.575811, 12.798836, 0), V(6.047318, 12.571518, 0), V(6.276646, 12.447043, 0), V(6.725858, 12.182194, 0), V(6.945773, 12.041872, 0), V(7.375385, 11.744031, 0), V(7.585144, 11.586613, 0), V(7.990072, 11.24722, 0), V(8.185559, 11.064546, 0), V(8.558255, 10.68926, 0), V(8.73654, 10.49549, 0), V(9.068357, 10.089144, 0), V(9.222354, 9.876921, 0), V(9.517009, 9.44234, 0), V(9.657293, 9.219698, 0), V(9.919361, 8.760357, 0), V(10.041435, 8.523093, 0), V(10.262623, 8.04138, 0), V(10.362329, 7.796198, 0), V(10.544156, 7.298849, 0), V(10.62618, 7.046643, 0), V(10.707399, 6.794117, 0)], [4, 2, 2, 2, 2, 2, 2, 2, 2, 2, 2, 2, 2, 2, 2, 4], [0, 0.0625, 0.125, 0.25, 0.3125, 0.375, 0.4375, 0.5, 0.5625, 0.625, 0.6875, 0.75, 0.8125, 0.875, 0.9375, 1], False, 3, [1, 1, 1, 1, 1, 1, 1, 1, 1, 1, 1, 1, 1, 1, 1, 1, 1, 1, 1, 1, 1, 1, 1, 1, 1, 1, 1, 1, 1, 1, 1, 1], False),  # 3
    Part.LineSegment(V(10.707399, 6.794117, 0), V(6.523277, 4.367539, 0)),  # 4
    Part.BSplineCurve([V(6.523277, 4.367539, 0), V(6.432076, 4.644461, 0), V(6.339022, 4.920494, 0), V(6.12482, 5.459092, 0), V(6.00275, 5.721214, 0), V(5.730769, 6.23211, 0), V(5.581981, 6.481422, 0), V(5.248234, 6.962705, 0), V(5.06419, 7.190956, 0), V(4.664142, 7.612581, 0), V(4.447968, 7.808026, 0), V(3.975324, 8.158482, 0), V(3.725111, 8.306986, 0), V(3.197408, 8.551522, 0), V(2.916938, 8.65014, 0), V(2.34688, 8.767166, 0), V(2.055284, 8.781808, 0), V(1.763612, 8.795948, 0)], [4, 2, 2, 2, 2, 2, 2, 2, 4], [0, 0.125, 0.25, 0.375, 0.5, 0.625, 0.75, 0.875, 1], False, 3, [1, 1, 1, 1, 1, 1, 1, 1, 1, 1, 1, 1, 1, 1, 1, 1, 1, 1], False),  # 5
    Part.BSplineCurve([V(1.763612, 8.795948, 0), V(1.523416, 8.786202, 0), V(1.283235, 8.776362, 0), V(0.811378, 8.704291, 0), V(0.578366, 8.640724, 0), V(0.127106, 8.464207, 0), V(-0.086043, 8.35409, 0), V(-0.481318, 8.079524, 0), V(-0.663049, 7.914206, 0), V(-0.985313, 7.556776, 0), V(-1.129481, 7.360158, 0), V(-1.368307, 6.939027, 0), V(-1.462665, 6.718031, 0), V(-1.611362, 6.259383, 0), V(-1.664569, 6.020772, 0), V(-1.723641, 5.542571, 0), V(-1.731835, 5.301123, 0), V(-1.740022, 5.059674, 0)], [4, 2, 2, 2, 2, 2, 2, 2, 4], [0, 0.125, 0.25, 0.375, 0.5, 0.625, 0.75, 0.875, 1], False, 3, [1, 1, 1, 1, 1, 1, 1, 1, 1, 1, 1, 1, 1, 1, 1, 1, 1, 1], False),  # 6
    Part.BSplineCurve([V(-1.740022, 5.059674, 0), V(-1.73231, 4.89188, 0), V(-1.724609, 4.724083, 0), V(-1.696171, 4.39107, 0), V(-1.674527, 4.226033, 0), V(-1.580541, 3.736673, 0), V(-1.483376, 3.417262, 0), V(-1.106116, 2.476003, 0), V(-0.751413, 1.910757, 0), V(-0.167581, 1.097152, 0), V(0.036771, 0.831929, 0), V(0.452101, 0.30623, 0), V(0.660205, 0.043749, 0), V(1.300606, -0.730173, 0), V(1.743128, -1.233024, 0), V(2.186575, -1.735097, 0)], [4, 2, 2, 2, 2, 2, 2, 4], [0, 0.0625, 0.125, 0.25, 0.5, 0.625, 0.75, 1], False, 3, [1, 1, 1, 1, 1, 1, 1, 1, 1, 1, 1, 1, 1, 1, 1, 1], False),  # 7
    Part.LineSegment(V(2.186575, -1.735097, 0), V(10.611044, -11.191246, 0)),  # 8
    Part.LineSegment(V(10.611044, -11.191246, 0), V(10.611044, -14.65, 0)),  # 9
    Part.LineSegment(V(10.611044, -14.65, 0), V(-8.501209, -14.65, 0)),  # 10
    Part.LineSegment(V(-8.501209, -14.65, 0), V(-8.501209, -9.991502, 0)),  # 11
    Part.LineSegment(V(-8.501209, -9.991502, 0), V(2.828704, -9.991502, 0)),  # 12
], False)
sketch11.addConstraint([
    Sketcher.Constraint("Block", 1),
    Sketcher.Constraint("Block", 2),
    Sketcher.Constraint("Block", 3),
    Sketcher.Constraint("Block", 5),
    Sketcher.Constraint("Block", 6),
    Sketcher.Constraint("Block", 7),
    Sketcher.Constraint("Coincident", 0, 2, 1, 1),
    Sketcher.Constraint("Coincident", 3, 2, 4, 1),
    Sketcher.Constraint("Coincident", 4, 2, 5, 1),
    Sketcher.Constraint("Coincident", 7, 2, 8, 1),
    Sketcher.Constraint("Coincident", 8, 2, 9, 1),
    Sketcher.Constraint("Coincident", 9, 2, 10, 1),
    Sketcher.Constraint("Coincident", 10, 2, 11, 1),
    Sketcher.Constraint("Coincident", 11, 2, 12, 1),
    Sketcher.Constraint("Coincident", 12, 2, 0, 1),
    Sketcher.Constraint("Vertical", 9),
    Sketcher.Constraint("Horizontal", 10),
    Sketcher.Constraint("Vertical", 11),
    Sketcher.Constraint("Horizontal", 12),
    Sketcher.Constraint("DistanceY", 9, 2, -1, 1, Q("14.65 mm")),
    Sketcher.Constraint("DistanceY", 11, 1, 11, 2, Q("4.658498 mm")),
    Sketcher.Constraint("Distance", 0, Q("7.374898 mm")),
    Sketcher.Constraint("DistanceX", 10, 2, 10, 1, Q("19.112253 mm")),
    Sketcher.Constraint("DistanceX", 12, 1, 12, 2, Q("11.329914 mm")),
    Sketcher.Constraint("DistanceY", 9, 2, 9, 1, Q("3.458754 mm")),
])
pad3 = body.newObject("PartDesign::Pad", "Pad002")
pad3.Profile = sketch11
pad3.Length = 0.2
pad3.Reversed = True

doc.recompute()
